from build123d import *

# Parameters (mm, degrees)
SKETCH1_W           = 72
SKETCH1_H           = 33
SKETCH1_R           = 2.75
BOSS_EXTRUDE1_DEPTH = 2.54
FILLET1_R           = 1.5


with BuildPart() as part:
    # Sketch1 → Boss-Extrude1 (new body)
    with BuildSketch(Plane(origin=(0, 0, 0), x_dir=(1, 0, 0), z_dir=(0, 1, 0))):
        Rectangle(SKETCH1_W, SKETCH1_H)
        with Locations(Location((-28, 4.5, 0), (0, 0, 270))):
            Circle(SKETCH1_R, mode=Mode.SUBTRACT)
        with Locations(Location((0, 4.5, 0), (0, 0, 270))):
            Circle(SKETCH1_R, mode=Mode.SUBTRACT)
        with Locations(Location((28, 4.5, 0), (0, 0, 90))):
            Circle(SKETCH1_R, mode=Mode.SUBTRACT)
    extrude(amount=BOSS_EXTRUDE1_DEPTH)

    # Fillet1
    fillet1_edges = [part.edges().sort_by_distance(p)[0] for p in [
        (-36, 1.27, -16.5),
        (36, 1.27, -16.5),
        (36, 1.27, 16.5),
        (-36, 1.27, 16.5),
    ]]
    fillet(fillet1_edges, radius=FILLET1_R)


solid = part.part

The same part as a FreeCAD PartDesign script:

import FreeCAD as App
import Part
import Sketcher
from FreeCAD import Vector
Q = App.Units.Quantity


def edges_at(feature, points):
    """Names of the edges that pass closest to the given points."""
    edges = feature.Shape.Edges
    near = lambda p: min(range(len(edges)), key=lambda i: edges[i].distToShape(Part.Vertex(*p))[0])
    return sorted({f"Edge{near(p) + 1}" for p in points})


def add_polygon(sketch, points):
    """Adds a closed chain of lines whose ends are joined by coincident constraints."""
    first, n = sketch.GeometryCount, len(points)
    for a, b in zip(points, points[1:] + points[:1]):
        sketch.addGeometry(Part.LineSegment(App.Vector(*a, 0), App.Vector(*b, 0)), False)
    for i in range(n):
        sketch.addConstraint(Sketcher.Constraint("Coincident", first + i, 2, first + (i + 1) % n, 1))

doc = App.newDocument("Part")
body = doc.addObject("PartDesign::Body", "Body")

# Sketch on XZ plane
sketch1 = body.newObject("Sketcher::SketchObject", "Sketch")
sketch1.AttachmentSupport = (doc.getObject("XZ_Plane"), [""])
sketch1.MapMode = "FlatFace"
add_polygon(sketch1, [(-36, -16.5), (-36, 16.5), (36, 16.5), (36, -16.5)])  # lines 0-3
sketch1.addGeometry(Part.Circle(Vector(-28, -4.5, 0), Vector(0, 0, 1), 2.75), False)  # 4
sketch1.addGeometry(Part.Circle(Vector(0, -4.5, 0), Vector(0, 0, 1), 2.75), False)  # 5
sketch1.addGeometry(Part.Circle(Vector(28, -4.5, 0), Vector(0, 0, 1), 2.75), False)  # 6
sketch1.addConstraint(Sketcher.Constraint("Vertical", 0))
sketch1.addConstraint(Sketcher.Constraint("Horizontal", 1))
sketch1.addConstraint(Sketcher.Constraint("Vertical", 2))
sketch1.addConstraint(Sketcher.Constraint("Horizontal", 3))
sketch1.addConstraint(Sketcher.Constraint("Equal", 4, 5))
sketch1.addConstraint(Sketcher.Constraint("Equal", 5, 6))
sketch1.addConstraint(Sketcher.Constraint("Symmetric", 0, 2, 2, 2, -1, 1))
sketch1.addConstraint(Sketcher.Constraint("Symmetric", 4, 3, 6, 3, -2))
sketch1.addConstraint(Sketcher.Constraint("PointOnObject", 5, 3, -2))
sketch1.addConstraint(Sketcher.Constraint("Horizontal", 4, 3, 5, 3))
sketch1.addConstraint(Sketcher.Constraint("Diameter", 4, Q("5.5 mm")))
sketch1.addConstraint(Sketcher.Constraint("DistanceX", 1, 1, 1, 2, Q("72 mm")))
sketch1.addConstraint(Sketcher.Constraint("DistanceY", 0, 1, 0, 2, Q("33 mm")))
sketch1.addConstraint(Sketcher.Constraint("DistanceX", 4, 3, -1, 1, Q("28 mm")))
sketch1.addConstraint(Sketcher.Constraint("DistanceY", 4, 3, 0, 2, Q("21 mm")))
pad1 = body.newObject("PartDesign::Pad", "Pad")
pad1.Profile = sketch1
pad1.Length = 2.54
pad1.Reversed = True
doc.recompute()

fillet = body.newObject("PartDesign::Fillet", "Fillet")
fillet.Base = (pad1, edges_at(pad1, [
    (-36, 1.27, -16.5),
    (36, 1.27, -16.5),
    (36, 1.27, 16.5),
    (-36, 1.27, 16.5),
]))
fillet.Radius = 1.5

doc.recompute()
